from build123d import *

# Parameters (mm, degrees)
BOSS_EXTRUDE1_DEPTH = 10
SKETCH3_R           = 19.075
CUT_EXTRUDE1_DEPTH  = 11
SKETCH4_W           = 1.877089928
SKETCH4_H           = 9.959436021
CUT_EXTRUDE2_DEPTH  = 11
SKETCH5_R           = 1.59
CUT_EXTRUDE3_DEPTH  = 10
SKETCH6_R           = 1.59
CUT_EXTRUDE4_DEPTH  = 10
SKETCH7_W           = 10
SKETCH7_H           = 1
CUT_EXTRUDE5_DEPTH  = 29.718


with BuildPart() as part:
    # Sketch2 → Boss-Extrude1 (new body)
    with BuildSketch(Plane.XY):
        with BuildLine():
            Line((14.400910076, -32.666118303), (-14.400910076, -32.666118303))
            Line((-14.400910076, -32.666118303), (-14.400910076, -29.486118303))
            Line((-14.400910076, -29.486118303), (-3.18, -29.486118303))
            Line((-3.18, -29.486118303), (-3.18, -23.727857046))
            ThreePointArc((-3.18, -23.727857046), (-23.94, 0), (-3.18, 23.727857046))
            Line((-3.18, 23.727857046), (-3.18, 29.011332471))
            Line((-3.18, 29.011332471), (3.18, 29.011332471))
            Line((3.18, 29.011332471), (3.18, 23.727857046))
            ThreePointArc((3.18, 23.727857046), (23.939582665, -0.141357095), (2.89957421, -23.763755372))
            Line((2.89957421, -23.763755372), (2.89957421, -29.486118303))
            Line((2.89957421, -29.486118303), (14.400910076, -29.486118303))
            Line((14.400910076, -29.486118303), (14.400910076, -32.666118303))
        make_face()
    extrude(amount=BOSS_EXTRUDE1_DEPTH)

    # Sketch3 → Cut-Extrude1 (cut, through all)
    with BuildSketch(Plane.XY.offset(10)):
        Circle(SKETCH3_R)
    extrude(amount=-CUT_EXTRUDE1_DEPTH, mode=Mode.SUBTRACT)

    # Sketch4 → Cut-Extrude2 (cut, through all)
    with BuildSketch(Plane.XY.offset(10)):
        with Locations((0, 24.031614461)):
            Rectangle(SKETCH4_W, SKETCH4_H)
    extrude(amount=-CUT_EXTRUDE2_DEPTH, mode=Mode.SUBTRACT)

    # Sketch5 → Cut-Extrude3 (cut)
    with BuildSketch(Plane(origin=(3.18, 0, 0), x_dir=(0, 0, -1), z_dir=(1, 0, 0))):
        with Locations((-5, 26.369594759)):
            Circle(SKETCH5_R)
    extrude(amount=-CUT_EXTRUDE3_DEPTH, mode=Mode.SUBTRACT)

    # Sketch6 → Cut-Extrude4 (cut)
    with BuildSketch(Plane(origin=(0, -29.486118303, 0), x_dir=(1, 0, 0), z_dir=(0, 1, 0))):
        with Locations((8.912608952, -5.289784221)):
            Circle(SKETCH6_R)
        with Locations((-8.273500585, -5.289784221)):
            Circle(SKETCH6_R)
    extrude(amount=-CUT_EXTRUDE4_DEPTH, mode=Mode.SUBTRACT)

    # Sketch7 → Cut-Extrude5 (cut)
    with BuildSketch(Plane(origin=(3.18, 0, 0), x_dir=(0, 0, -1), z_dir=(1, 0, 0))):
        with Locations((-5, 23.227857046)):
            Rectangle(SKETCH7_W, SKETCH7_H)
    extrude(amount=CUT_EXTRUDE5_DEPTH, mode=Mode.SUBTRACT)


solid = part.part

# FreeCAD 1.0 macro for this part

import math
import FreeCAD as App
import Part
import Sketcher
from FreeCAD import Vector


def add_polygon(sketch, points):
    """Adds a closed chain of lines whose ends are joined by coincident constraints."""
    first, n = sketch.GeometryCount, len(points)
    for a, b in zip(points, points[1:] + points[:1]):
        sketch.addGeometry(Part.LineSegment(App.Vector(*a, 0), App.Vector(*b, 0)), False)
    for i in range(n):
        sketch.addConstraint(Sketcher.Constraint("Coincident", first + i, 2, first + (i + 1) % n, 1))

doc = App.newDocument("Part")
body = doc.addObject("PartDesign::Body", "Body")

sketch1 = body.newObject("Sketcher::SketchObject", "Sketch")
sketch1.AttachmentSupport = (doc.getObject("XY_Plane"), [""])
sketch1.MapMode = "FlatFace"
sketch1.addGeometry([
    Part.LineSegment(Vector(-14.40091, -32.666118, 0), Vector(14.40091, -32.666118, 0)),
    Part.LineSegment(Vector(14.40091, -32.666118, 0), Vector(14.40091, -29.486118, 0)),
    Part.LineSegment(Vector(14.40091, -29.486118, 0), Vector(2.899574, -29.486118, 0)),
    Part.LineSegment(Vector(2.899574, -29.486118, 0), Vector(2.899574, -23.763755, 0)),
    Part.ArcOfCircle(Part.Circle(Vector(0, 0, 0), Vector(0, 0, 1), 23.94), math.radians(-83.043348), math.radians(82.366722)),
    Part.LineSegment(Vector(3.18, 23.727857, 0), Vector(3.18, 29.011332, 0)),
    Part.LineSegment(Vector(3.18, 29.011332, 0), Vector(-3.18, 29.011332, 0)),
    Part.LineSegment(Vector(-3.18, 29.011332, 0), Vector(-3.18, 23.727857, 0)),
    Part.ArcOfCircle(Part.Circle(Vector(0, 0, 0), Vector(0, 0, 1), 23.94), math.radians(97.633278), math.radians(262.366722)),
    Part.LineSegment(Vector(-3.18, -23.727857, 0), Vector(-3.18, -29.486118, 0)),
    Part.LineSegment(Vector(-3.18, -29.486118, 0), Vector(-14.40091, -29.486118, 0)),
    Part.LineSegment(Vector(-14.40091, -29.486118, 0), Vector(-14.40091, -32.666118, 0)),
], False)
sketch1.addConstraint([
    Sketcher.Constraint("Coincident", 0, 2, 1, 1),
    Sketcher.Constraint("Coincident", 1, 2, 2, 1),
    Sketcher.Constraint("Coincident", 2, 2, 3, 1),
    Sketcher.Constraint("Coincident", 3, 2, 4, 1),
    Sketcher.Constraint("Coincident", 4, 2, 5, 1),
    Sketcher.Constraint("Coincident", 5, 2, 6, 1),
    Sketcher.Constraint("Coincident", 6, 2, 7, 1),
    Sketcher.Constraint("Coincident", 7, 2, 8, 1),
    Sketcher.Constraint("Coincident", 8, 2, 9, 1),
    Sketcher.Constraint("Coincident", 9, 2, 10, 1),
    Sketcher.Constraint("Coincident", 10, 2, 11, 1),
    Sketcher.Constraint("Coincident", 11, 2, 0, 1),
    Sketcher.Constraint("Horizontal", 0),
    Sketcher.Constraint("Vertical", 1),
    Sketcher.Constraint("Horizontal", 2),
    Sketcher.Constraint("Vertical", 3),
    Sketcher.Constraint("Vertical", 5),
    Sketcher.Constraint("Horizontal", 6),
    Sketcher.Constraint("Vertical", 7),
    Sketcher.Constraint("Vertical", 9),
    Sketcher.Constraint("Horizontal", 10),
    Sketcher.Constraint("Vertical", 11),
    Sketcher.Constraint("Coincident", 4, 3, -1, 1),
    Sketcher.Constraint("Coincident", 8, 3, -1, 1),
    Sketcher.Constraint("Equal", 4, 8),
    Sketcher.Constraint("Symmetric", 1, 2, 10, 2, -2),
    Sketcher.Constraint("Horizontal", 4, 2, 7, 2),
    Sketcher.Constraint("Vertical", 7, 2, 8, 2),
    Sketcher.Constraint("Radius", 4, 23.94),
    Sketcher.Constraint("DistanceX", 6, 2, 6, 1, 6.36),
    Sketcher.Constraint("DistanceY", 1, 1, 1, 2, 3.18),
    Sketcher.Constraint("DistanceX", 0, 1, 0, 2, 28.80182),
    Sketcher.Constraint("DistanceY", 9, 2, 9, 1, 5.758261),
    Sketcher.Constraint("DistanceY", 3, 2, 8, 2, 0.035898),
    Sketcher.Constraint("DistanceY", 5, 1, 5, 2, 5.283475),
])
pad1 = body.newObject("PartDesign::Pad", "Pad")
pad1.Profile = sketch1
pad1.Length = 10

sketch2 = body.newObject("Sketcher::SketchObject", "Sketch001")
sketch2.AttachmentSupport = (doc.getObject("XY_Plane"), [""])
sketch2.MapMode = "FlatFace"
sketch2.AttachmentOffset = App.Placement(Vector(0, 0, 10), App.Rotation())
sketch2.addGeometry(Part.Circle(Vector(0, 0, 0), Vector(0, 0, 1), 19.075), False)
sketch2.addConstraint([
    Sketcher.Constraint("Coincident", 0, 3, -1, 1),
    Sketcher.Constraint("Diameter", 0, 38.15),
])
pocket1 = body.newObject("PartDesign::Pocket", "Pocket")
pocket1.Profile = sketch2
pocket1.Type = "ThroughAll"

sketch3 = body.newObject("Sketcher::SketchObject", "Sketch002")
sketch3.AttachmentSupport = (doc.getObject("XY_Plane"), [""])
sketch3.MapMode = "FlatFace"
sketch3.AttachmentOffset = App.Placement(Vector(0, 0, 10), App.Rotation())
add_polygon(sketch3, [(-0.938545, 29.011332), (-0.938545, 19.051896), (0.938545, 19.051896), (0.938545, 29.011332)])
sketch3.addConstraint([
    Sketcher.Constraint("Vertical", 0),
    Sketcher.Constraint("Horizontal", 1),
    Sketcher.Constraint("Vertical", 2),
    Sketcher.Constraint("Horizontal", 3),
    Sketcher.Constraint("DistanceX", 1, 1, 1, 2, 1.87709),
    Sketcher.Constraint("DistanceY", 0, 2, 0, 1, 9.959436),
    Sketcher.Constraint("DistanceX", 0, 2, -1, 1, 0.938545),
    Sketcher.Constraint("DistanceY", -1, 1, 0, 2, 19.051896),
])
pocket2 = body.newObject("PartDesign::Pocket", "Pocket001")
pocket2.Profile = sketch3
pocket2.Type = "ThroughAll"

sketch4 = body.newObject("Sketcher::SketchObject", "Sketch003")
sketch4.AttachmentSupport = (doc.getObject("YZ_Plane"), [""])
sketch4.MapMode = "FlatFace"
sketch4.AttachmentOffset = App.Placement(Vector(0, 0, 3.18), App.Rotation())
sketch4.addGeometry(Part.Circle(Vector(26.369595, 5, 0), Vector(0, 0, 1), 1.59), False)
sketch4.addConstraint([
    Sketcher.Constraint("Diameter", 0, 3.18),
    Sketcher.Constraint("DistanceY", -1, 1, 0, 3, 5.0),
    Sketcher.Constraint("DistanceX", -1, 1, 0, 3, 26.369595),
])
pocket3 = body.newObject("PartDesign::Pocket", "Pocket002")
pocket3.Profile = sketch4
pocket3.Length = 10

sketch5 = body.newObject("Sketcher::SketchObject", "Sketch004")
sketch5.AttachmentSupport = (doc.getObject("XZ_Plane"), [""])
sketch5.MapMode = "FlatFace"
sketch5.AttachmentOffset = App.Placement(Vector(0, 0, 29.486118), App.Rotation())
sketch5.addGeometry([
    Part.Circle(Vector(8.912609, 5.289784, 0), Vector(0, 0, 1), 1.59),
    Part.Circle(Vector(-8.273501, 5.289784, 0), Vector(0, 0, 1), 1.59),
], False)
sketch5.addConstraint([
    Sketcher.Constraint("Equal", 0, 1),
    Sketcher.Constraint("Horizontal", 0, 3, 1, 3),
    Sketcher.Constraint("Diameter", 0, 3.18),
    Sketcher.Constraint("DistanceX", 1, 3, -1, 1, 8.273501),
    Sketcher.Constraint("DistanceX", -1, 1, 0, 3, 8.912609),
    Sketcher.Constraint("DistanceY", -1, 1, 0, 3, 5.289784),
])
pocket4 = body.newObject("PartDesign::Pocket", "Pocket003")
pocket4.Profile = sketch5
pocket4.Length = 10
pocket4.Reversed = True

sketch6 = body.newObject("Sketcher::SketchObject", "Sketch005")
sketch6.AttachmentSupport = (doc.getObject("YZ_Plane"), [""])
sketch6.MapMode = "FlatFace"
sketch6.AttachmentOffset = App.Placement(Vector(0, 0, 3.18), App.Rotation())
add_polygon(sketch6, [(23.727857, 10), (22.727857, 10), (22.727857, 0), (23.727857, 0)])
sketch6.addConstraint([
    Sketcher.Constraint("Horizontal", 0),
    Sketcher.Constraint("Vertical", 1),
    Sketcher.Constraint("Horizontal", 2),
    Sketcher.Constraint("Vertical", 3),
    Sketcher.Constraint("PointOnObject", 1, 2, -1),
    Sketcher.Constraint("DistanceX", 0, 2, 0, 1, 1.0),
    Sketcher.Constraint("DistanceY", 1, 2, 1, 1, 10.0),
    Sketcher.Constraint("DistanceX", -1, 1, 0, 2, 22.727857),
])
pocket5 = body.newObject("PartDesign::Pocket", "Pocket004")
pocket5.Profile = sketch6
pocket5.Length = 29.718
pocket5.Reversed = True

doc.recompute()
